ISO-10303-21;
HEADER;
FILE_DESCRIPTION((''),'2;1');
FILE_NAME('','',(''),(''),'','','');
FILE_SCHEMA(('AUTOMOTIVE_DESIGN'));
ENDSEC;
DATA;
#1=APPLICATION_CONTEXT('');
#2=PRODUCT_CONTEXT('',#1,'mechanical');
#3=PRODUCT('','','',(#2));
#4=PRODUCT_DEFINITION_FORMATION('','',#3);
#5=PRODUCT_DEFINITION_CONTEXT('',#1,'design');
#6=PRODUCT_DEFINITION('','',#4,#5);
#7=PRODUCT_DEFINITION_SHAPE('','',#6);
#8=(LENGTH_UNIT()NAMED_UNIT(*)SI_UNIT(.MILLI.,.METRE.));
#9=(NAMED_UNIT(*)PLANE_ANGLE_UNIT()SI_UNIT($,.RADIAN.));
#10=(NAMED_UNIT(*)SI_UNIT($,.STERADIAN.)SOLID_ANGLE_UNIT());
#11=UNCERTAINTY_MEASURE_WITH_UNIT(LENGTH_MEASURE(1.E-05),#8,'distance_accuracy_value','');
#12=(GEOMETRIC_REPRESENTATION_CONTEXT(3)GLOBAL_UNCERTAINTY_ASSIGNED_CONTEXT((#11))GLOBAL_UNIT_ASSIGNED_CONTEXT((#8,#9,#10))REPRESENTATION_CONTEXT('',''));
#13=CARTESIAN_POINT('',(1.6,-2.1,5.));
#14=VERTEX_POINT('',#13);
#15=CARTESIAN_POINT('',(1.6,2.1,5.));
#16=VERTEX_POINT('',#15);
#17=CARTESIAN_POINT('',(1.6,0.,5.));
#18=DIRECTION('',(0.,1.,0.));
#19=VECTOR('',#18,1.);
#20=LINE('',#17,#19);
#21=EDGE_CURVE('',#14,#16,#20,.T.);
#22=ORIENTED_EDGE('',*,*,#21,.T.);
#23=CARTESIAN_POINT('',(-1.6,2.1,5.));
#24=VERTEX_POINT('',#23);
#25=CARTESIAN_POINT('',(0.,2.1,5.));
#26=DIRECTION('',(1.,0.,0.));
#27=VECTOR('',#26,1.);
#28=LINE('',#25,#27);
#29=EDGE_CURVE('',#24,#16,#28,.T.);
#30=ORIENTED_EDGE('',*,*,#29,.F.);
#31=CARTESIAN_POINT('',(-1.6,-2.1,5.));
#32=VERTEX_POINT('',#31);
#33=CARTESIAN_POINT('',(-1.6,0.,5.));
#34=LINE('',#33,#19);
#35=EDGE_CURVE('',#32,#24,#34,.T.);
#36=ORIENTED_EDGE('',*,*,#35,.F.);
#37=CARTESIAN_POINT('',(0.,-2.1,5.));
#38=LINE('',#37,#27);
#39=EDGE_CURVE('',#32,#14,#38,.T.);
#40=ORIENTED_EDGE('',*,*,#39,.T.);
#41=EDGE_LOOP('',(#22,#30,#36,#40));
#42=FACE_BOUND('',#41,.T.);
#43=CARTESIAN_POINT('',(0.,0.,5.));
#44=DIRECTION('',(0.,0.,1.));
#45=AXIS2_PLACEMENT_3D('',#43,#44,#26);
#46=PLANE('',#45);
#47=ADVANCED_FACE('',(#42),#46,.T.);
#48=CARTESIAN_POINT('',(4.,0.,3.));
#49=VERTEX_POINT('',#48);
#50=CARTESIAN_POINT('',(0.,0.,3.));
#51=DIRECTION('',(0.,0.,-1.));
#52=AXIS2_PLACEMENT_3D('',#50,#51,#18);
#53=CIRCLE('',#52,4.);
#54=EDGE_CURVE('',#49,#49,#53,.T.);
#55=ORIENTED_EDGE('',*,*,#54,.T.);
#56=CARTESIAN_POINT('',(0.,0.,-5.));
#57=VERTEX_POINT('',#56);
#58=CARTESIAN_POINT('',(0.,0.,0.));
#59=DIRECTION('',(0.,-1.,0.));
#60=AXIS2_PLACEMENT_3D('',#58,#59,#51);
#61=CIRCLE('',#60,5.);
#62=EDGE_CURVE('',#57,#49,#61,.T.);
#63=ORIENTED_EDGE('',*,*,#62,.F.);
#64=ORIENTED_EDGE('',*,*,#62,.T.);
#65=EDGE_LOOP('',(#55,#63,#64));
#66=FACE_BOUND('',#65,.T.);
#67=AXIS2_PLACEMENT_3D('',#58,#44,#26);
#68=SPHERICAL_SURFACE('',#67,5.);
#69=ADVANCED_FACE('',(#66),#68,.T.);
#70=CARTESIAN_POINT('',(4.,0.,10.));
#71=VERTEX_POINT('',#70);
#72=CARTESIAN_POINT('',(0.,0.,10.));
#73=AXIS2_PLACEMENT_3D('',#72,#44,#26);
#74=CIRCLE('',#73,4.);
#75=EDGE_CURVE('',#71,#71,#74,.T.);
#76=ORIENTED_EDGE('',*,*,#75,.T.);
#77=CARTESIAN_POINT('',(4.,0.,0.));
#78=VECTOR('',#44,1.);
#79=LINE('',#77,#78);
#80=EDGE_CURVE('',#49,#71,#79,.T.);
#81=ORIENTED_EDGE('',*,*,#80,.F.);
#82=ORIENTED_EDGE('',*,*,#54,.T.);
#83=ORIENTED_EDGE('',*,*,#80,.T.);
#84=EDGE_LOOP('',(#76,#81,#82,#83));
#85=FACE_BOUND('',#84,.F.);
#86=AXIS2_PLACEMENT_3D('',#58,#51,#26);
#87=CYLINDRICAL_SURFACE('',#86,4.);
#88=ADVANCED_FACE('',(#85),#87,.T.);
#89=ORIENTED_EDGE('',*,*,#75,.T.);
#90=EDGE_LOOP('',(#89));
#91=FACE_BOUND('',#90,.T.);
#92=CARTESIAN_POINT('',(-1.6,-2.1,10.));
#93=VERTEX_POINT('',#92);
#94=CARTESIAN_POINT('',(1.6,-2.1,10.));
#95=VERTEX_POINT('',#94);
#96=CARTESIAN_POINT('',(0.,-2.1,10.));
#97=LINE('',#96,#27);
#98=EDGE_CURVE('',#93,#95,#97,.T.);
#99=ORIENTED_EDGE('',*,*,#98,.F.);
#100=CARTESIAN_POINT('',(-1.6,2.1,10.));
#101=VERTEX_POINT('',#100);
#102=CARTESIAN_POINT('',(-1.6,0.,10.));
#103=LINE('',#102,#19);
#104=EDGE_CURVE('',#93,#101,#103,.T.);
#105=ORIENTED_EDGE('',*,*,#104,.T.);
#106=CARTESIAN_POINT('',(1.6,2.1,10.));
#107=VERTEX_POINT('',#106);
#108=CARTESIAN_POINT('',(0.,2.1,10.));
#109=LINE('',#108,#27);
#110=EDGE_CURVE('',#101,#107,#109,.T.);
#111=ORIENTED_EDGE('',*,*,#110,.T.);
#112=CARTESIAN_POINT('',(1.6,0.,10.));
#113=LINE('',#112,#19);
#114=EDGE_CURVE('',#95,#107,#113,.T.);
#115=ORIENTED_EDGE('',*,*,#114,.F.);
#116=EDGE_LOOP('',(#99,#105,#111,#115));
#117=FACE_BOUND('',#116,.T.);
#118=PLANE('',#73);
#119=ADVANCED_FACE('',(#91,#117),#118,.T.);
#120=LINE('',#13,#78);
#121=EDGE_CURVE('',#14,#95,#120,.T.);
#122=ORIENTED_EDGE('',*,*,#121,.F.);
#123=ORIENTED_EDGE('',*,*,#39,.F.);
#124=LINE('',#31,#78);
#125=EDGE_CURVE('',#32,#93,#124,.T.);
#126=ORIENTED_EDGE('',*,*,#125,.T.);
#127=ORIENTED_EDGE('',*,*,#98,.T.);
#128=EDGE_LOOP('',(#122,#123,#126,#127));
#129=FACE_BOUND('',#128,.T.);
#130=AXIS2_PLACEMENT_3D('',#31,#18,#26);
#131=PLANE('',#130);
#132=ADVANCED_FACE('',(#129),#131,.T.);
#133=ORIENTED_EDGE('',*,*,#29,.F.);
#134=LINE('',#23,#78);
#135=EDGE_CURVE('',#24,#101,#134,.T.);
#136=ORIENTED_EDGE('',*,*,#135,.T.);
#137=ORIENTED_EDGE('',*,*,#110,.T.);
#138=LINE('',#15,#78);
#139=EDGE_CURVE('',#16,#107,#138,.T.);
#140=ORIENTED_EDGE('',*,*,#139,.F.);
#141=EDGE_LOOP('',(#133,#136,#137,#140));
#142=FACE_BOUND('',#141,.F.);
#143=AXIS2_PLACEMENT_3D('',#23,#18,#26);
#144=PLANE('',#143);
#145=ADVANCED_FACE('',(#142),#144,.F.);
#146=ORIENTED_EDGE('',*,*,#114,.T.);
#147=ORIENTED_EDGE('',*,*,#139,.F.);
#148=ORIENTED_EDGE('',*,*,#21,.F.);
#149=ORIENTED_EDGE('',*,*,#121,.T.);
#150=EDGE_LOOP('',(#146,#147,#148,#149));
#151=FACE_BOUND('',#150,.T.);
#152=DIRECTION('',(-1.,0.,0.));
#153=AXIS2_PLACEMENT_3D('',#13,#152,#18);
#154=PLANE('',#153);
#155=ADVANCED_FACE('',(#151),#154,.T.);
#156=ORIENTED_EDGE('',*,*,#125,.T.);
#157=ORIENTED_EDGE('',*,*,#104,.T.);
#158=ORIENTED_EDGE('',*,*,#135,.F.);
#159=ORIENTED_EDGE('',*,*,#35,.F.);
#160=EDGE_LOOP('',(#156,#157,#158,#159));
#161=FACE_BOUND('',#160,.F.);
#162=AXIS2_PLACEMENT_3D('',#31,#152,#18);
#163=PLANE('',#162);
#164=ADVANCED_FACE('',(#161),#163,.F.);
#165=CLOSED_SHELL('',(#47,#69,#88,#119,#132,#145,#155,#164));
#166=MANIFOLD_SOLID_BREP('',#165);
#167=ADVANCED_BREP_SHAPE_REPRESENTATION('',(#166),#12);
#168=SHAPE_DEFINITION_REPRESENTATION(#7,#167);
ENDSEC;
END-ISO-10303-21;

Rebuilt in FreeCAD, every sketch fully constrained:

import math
import FreeCAD as App
import Part
import Sketcher

V = App.Vector
Q = App.Units.Quantity

doc = App.newDocument("Part")
params = doc.addObject("Spreadsheet::Sheet", "Params")
for row, (alias, value) in enumerate([
    ("sketch1_width", "3.2 mm"),
    ("sketch1_height", "4.2 mm"),
    ("pad1_length", "5 mm"),
    ("sketch2_diameter", "8 mm"),
    ("pad2_length", "10 mm"),
    ("sketch3_radius", "5 mm"),
    ("revolution_angle", "360 deg"),
], start=1):
    params.set(f"A{row}", alias)
    params.set(f"B{row}", "=" + value)
    params.setAlias(f"B{row}", alias)

body = doc.addObject("PartDesign::Body", "Body")

# Sketch on XY plane
sketch1 = doc.addObject("Sketcher::SketchObject", "Sketch")
body.addObject(sketch1)
sketch1.AttachmentSupport = (doc.XY_Plane, [""])
sketch1.MapMode = "FlatFace"
sketch1.AttachmentOffset = App.Placement(V(0, 0, 5), App.Rotation())
sketch1.addGeometry([
    Part.LineSegment(V(-1.6, 2.1, 0), V(-1.6, -2.1, 0)),
    Part.LineSegment(V(-1.6, -2.1, 0), V(1.6, -2.1, 0)),
    Part.LineSegment(V(1.6, -2.1, 0), V(1.6, 2.1, 0)),
    Part.LineSegment(V(1.6, 2.1, 0), V(-1.6, 2.1, 0)),
], False)
sketch1.addConstraint([
    Sketcher.Constraint("Coincident", 0, 2, 1, 1),
    Sketcher.Constraint("Coincident", 1, 2, 2, 1),
    Sketcher.Constraint("Coincident", 2, 2, 3, 1),
    Sketcher.Constraint("Coincident", 3, 2, 0, 1),
    Sketcher.Constraint("Vertical", 0),
    Sketcher.Constraint("Horizontal", 1),
    Sketcher.Constraint("Vertical", 2),
    Sketcher.Constraint("Horizontal", 3),
    Sketcher.Constraint("Symmetric", 0, 2, 2, 2, -1, 1),
    Sketcher.Constraint("DistanceX", 1, 1, 1, 2, Q("3.2 mm")),
    Sketcher.Constraint("DistanceY", 0, 2, 0, 1, Q("4.2 mm")),
])
sketch1.setExpression("Constraints[9]", "Params.sketch1_width")
sketch1.setExpression("Constraints[10]", "Params.sketch1_height")
pad1 = doc.addObject("PartDesign::Pad", "Pad")
body.addObject(pad1)
pad1.Profile = sketch1
pad1.setExpression("Length", "Params.pad1_length")
body2 = doc.addObject("PartDesign::Body", "Body001")

# Sketch on XY plane
sketch2 = doc.addObject("Sketcher::SketchObject", "Sketch001")
body2.addObject(sketch2)
sketch2.AttachmentSupport = (doc.getObject("XY_Plane001"), [""])
sketch2.MapMode = "FlatFace"
sketch2.addGeometry(Part.Circle(V(0, 0, 0), V(0, 0, 1), 4), False)
sketch2.addConstraint([
    Sketcher.Constraint("Coincident", 0, 3, -1, 1),
    Sketcher.Constraint("Diameter", 0, Q("8 mm")),
])
sketch2.setExpression("Constraints[1]", "Params.sketch2_diameter")
pad2 = doc.addObject("PartDesign::Pad", "Pad001")
body2.addObject(pad2)
pad2.Profile = sketch2
pad2.setExpression("Length", "Params.pad2_length")
body3 = doc.addObject("PartDesign::Body", "Body002")

# Sketch on XZ plane
sketch3 = doc.addObject("Sketcher::SketchObject", "Sketch002")
body3.addObject(sketch3)
sketch3.AttachmentSupport = (doc.getObject("XZ_Plane002"), [""])
sketch3.MapMode = "FlatFace"
sketch3.addGeometry([
    Part.ArcOfCircle(Part.Circle(V(0, 0, 0), V(0, 0, 1), 5), math.radians(-90), math.radians(90)),
    Part.LineSegment(V(0, 5, 0), V(0, -5, 0)),
], False)
sketch3.addConstraint([
    Sketcher.Constraint("Coincident", 0, 1, 1, 2),
    Sketcher.Constraint("Coincident", 1, 1, 0, 2),
    Sketcher.Constraint("Vertical", 1),
    Sketcher.Constraint("Coincident", 0, 3, -1, 1),
    Sketcher.Constraint("PointOnObject", 0, 1, -2),
    Sketcher.Constraint("Radius", 0, Q("5 mm")),
])
sketch3.setExpression("Constraints[5]", "Params.sketch3_radius")
revolution = doc.addObject("PartDesign::Revolution", "Revolution")
body3.addObject(revolution)
revolution.Profile = sketch3
revolution.ReferenceAxis = (sketch3, ["V_Axis"])
revolution.setExpression("Angle", "Params.revolution_angle")
doc.recompute()

boolean = doc.addObject("PartDesign::Boolean", "Boolean")
body3.addObject(boolean)
boolean.Type = "Fuse"
boolean.addObjects([body2])
doc.recompute()

boolean2 = doc.addObject("PartDesign::Boolean", "Boolean001")
body3.addObject(boolean2)
boolean2.Type = "Cut"
boolean2.addObjects([body])

doc.recompute()
